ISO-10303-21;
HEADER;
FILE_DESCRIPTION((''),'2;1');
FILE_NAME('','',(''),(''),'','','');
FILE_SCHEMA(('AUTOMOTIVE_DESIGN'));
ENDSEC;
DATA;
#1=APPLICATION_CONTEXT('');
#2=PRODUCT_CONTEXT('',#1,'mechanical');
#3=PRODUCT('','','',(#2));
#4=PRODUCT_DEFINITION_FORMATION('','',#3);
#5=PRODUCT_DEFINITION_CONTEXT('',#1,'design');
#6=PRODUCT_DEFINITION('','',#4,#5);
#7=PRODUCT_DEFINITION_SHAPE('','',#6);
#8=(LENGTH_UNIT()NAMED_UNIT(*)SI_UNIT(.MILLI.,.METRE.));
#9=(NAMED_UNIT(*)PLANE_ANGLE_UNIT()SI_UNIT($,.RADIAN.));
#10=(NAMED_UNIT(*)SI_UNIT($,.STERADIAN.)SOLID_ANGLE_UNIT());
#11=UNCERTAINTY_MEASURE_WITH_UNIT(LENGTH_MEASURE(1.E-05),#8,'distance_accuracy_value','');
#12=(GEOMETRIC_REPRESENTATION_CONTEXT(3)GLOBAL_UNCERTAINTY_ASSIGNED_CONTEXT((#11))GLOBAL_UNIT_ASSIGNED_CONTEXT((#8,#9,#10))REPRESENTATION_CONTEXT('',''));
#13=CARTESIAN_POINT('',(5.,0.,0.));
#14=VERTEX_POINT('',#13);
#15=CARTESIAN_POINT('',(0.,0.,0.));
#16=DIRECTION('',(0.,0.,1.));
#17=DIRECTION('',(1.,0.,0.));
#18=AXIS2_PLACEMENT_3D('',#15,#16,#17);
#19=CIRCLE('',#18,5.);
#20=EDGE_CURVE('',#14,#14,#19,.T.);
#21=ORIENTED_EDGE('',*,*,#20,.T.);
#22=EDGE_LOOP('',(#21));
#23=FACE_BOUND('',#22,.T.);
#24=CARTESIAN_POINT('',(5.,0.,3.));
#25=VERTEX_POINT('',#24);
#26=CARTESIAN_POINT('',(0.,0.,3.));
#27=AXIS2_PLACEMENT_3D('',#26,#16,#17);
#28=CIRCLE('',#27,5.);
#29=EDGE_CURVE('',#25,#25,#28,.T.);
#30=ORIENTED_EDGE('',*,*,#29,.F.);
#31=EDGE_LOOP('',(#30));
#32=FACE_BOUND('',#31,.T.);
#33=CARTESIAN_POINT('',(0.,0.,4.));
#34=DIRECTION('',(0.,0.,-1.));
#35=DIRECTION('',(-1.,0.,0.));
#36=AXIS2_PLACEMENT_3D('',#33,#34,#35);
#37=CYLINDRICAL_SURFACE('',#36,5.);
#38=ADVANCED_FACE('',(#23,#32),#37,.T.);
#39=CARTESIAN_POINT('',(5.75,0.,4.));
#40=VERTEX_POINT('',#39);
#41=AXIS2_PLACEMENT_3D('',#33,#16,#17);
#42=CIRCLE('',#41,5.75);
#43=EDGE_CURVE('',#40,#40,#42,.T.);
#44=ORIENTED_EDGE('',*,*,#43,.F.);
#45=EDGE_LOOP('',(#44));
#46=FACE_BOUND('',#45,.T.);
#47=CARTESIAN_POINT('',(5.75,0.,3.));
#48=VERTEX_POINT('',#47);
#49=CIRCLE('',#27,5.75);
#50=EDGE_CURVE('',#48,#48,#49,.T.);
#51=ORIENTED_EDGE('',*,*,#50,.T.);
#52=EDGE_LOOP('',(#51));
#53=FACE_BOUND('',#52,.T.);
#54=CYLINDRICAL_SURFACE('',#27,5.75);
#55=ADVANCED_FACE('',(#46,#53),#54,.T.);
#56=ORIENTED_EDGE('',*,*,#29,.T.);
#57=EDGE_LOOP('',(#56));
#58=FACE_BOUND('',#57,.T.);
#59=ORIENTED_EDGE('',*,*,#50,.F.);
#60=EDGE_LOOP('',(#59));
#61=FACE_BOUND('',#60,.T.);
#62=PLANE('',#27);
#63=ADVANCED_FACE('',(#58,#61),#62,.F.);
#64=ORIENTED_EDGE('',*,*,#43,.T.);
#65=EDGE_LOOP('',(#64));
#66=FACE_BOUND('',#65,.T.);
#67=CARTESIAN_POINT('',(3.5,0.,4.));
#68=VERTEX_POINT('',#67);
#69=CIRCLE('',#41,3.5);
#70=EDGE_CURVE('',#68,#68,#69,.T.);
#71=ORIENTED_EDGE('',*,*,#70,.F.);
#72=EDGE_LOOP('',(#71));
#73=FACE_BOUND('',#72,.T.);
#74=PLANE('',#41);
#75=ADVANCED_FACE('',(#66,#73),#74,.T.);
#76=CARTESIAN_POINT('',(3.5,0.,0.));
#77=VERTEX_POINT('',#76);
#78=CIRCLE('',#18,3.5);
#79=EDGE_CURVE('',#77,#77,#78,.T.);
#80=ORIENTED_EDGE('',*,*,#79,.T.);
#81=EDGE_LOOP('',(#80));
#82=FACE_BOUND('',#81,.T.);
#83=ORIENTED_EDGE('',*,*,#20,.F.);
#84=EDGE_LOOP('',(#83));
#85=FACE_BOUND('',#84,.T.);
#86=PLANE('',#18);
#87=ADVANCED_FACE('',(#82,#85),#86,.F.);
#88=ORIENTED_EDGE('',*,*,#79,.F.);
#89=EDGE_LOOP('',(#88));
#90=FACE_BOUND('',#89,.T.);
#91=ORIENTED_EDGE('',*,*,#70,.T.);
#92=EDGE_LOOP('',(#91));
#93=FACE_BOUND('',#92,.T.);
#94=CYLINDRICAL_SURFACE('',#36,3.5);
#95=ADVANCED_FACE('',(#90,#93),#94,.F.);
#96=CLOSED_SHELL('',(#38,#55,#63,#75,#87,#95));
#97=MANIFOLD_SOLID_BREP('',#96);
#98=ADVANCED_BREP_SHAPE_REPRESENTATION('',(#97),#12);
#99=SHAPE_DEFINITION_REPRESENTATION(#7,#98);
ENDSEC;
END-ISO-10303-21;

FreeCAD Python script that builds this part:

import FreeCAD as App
import Part
import Sketcher

V = App.Vector

doc = App.newDocument("Part")
params = doc.addObject("Spreadsheet::Sheet", "Params")
for row, (alias, value) in enumerate([
    ("sketch1_diameter", "10 mm"),
    ("sketch1_diameter2", "7 mm"),
    ("pad1_length", "4 mm"),
    ("sketch2_diameter", "10 mm"),
    ("sketch2_diameter2", "11.5 mm"),
    ("pad2_length", "1 mm"),
], start=1):
    params.set(f"A{row}", alias)
    params.set(f"B{row}", "=" + value)
    params.setAlias(f"B{row}", alias)

body = doc.addObject("PartDesign::Body", "Body")

# Sketch on XY plane
sketch1 = doc.addObject("Sketcher::SketchObject", "Sketch")
body.addObject(sketch1)
sketch1.AttachmentSupport = (doc.XY_Plane, [""])
sketch1.MapMode = "FlatFace"
sketch1.addGeometry([
    Part.Circle(V(0, 0, 0), V(0, 0, 1), 5),
    Part.Circle(V(0, 0, 0), V(0, 0, 1), 3.5),
], False)
sketch1.addConstraint([
    Sketcher.Constraint("Coincident", 0, 3, -1, 1),
    Sketcher.Constraint("Coincident", 1, 3, -1, 1),
    Sketcher.Constraint("Diameter", 0, 10.0),
    Sketcher.Constraint("Diameter", 1, 7.0),
])
sketch1.setExpression("Constraints[2]", "Params.sketch1_diameter")
sketch1.setExpression("Constraints[3]", "Params.sketch1_diameter2")
pad1 = doc.addObject("PartDesign::Pad", "Pad")
body.addObject(pad1)
pad1.Profile = sketch1
pad1.setExpression("Length", "Params.pad1_length")

# Sketch on XY plane
sketch2 = doc.addObject("Sketcher::SketchObject", "Sketch001")
body.addObject(sketch2)
sketch2.AttachmentSupport = (doc.XY_Plane, [""])
sketch2.MapMode = "FlatFace"
sketch2.AttachmentOffset = App.Placement(V(0, 0, 3), App.Rotation())
sketch2.addGeometry([
    Part.Circle(V(0, 0, 0), V(0, 0, 1), 6),
    Part.Circle(V(0, 0, 0), V(0, 0, 1), 5),
], False)
sketch2.addConstraint([
    Sketcher.Constraint("Coincident", 0, 3, -1, 1),
    Sketcher.Constraint("Coincident", 1, 3, -1, 1),
    Sketcher.Constraint("Diameter", 1, 10.0),
    Sketcher.Constraint("Diameter", 0, 11.5),
])
sketch2.setExpression("Constraints[2]", "Params.sketch2_diameter")
sketch2.setExpression("Constraints[3]", "Params.sketch2_diameter2")
pad2 = doc.addObject("PartDesign::Pad", "Pad001")
body.addObject(pad2)
pad2.Profile = sketch2
pad2.setExpression("Length", "Params.pad2_length")

doc.recompute()
